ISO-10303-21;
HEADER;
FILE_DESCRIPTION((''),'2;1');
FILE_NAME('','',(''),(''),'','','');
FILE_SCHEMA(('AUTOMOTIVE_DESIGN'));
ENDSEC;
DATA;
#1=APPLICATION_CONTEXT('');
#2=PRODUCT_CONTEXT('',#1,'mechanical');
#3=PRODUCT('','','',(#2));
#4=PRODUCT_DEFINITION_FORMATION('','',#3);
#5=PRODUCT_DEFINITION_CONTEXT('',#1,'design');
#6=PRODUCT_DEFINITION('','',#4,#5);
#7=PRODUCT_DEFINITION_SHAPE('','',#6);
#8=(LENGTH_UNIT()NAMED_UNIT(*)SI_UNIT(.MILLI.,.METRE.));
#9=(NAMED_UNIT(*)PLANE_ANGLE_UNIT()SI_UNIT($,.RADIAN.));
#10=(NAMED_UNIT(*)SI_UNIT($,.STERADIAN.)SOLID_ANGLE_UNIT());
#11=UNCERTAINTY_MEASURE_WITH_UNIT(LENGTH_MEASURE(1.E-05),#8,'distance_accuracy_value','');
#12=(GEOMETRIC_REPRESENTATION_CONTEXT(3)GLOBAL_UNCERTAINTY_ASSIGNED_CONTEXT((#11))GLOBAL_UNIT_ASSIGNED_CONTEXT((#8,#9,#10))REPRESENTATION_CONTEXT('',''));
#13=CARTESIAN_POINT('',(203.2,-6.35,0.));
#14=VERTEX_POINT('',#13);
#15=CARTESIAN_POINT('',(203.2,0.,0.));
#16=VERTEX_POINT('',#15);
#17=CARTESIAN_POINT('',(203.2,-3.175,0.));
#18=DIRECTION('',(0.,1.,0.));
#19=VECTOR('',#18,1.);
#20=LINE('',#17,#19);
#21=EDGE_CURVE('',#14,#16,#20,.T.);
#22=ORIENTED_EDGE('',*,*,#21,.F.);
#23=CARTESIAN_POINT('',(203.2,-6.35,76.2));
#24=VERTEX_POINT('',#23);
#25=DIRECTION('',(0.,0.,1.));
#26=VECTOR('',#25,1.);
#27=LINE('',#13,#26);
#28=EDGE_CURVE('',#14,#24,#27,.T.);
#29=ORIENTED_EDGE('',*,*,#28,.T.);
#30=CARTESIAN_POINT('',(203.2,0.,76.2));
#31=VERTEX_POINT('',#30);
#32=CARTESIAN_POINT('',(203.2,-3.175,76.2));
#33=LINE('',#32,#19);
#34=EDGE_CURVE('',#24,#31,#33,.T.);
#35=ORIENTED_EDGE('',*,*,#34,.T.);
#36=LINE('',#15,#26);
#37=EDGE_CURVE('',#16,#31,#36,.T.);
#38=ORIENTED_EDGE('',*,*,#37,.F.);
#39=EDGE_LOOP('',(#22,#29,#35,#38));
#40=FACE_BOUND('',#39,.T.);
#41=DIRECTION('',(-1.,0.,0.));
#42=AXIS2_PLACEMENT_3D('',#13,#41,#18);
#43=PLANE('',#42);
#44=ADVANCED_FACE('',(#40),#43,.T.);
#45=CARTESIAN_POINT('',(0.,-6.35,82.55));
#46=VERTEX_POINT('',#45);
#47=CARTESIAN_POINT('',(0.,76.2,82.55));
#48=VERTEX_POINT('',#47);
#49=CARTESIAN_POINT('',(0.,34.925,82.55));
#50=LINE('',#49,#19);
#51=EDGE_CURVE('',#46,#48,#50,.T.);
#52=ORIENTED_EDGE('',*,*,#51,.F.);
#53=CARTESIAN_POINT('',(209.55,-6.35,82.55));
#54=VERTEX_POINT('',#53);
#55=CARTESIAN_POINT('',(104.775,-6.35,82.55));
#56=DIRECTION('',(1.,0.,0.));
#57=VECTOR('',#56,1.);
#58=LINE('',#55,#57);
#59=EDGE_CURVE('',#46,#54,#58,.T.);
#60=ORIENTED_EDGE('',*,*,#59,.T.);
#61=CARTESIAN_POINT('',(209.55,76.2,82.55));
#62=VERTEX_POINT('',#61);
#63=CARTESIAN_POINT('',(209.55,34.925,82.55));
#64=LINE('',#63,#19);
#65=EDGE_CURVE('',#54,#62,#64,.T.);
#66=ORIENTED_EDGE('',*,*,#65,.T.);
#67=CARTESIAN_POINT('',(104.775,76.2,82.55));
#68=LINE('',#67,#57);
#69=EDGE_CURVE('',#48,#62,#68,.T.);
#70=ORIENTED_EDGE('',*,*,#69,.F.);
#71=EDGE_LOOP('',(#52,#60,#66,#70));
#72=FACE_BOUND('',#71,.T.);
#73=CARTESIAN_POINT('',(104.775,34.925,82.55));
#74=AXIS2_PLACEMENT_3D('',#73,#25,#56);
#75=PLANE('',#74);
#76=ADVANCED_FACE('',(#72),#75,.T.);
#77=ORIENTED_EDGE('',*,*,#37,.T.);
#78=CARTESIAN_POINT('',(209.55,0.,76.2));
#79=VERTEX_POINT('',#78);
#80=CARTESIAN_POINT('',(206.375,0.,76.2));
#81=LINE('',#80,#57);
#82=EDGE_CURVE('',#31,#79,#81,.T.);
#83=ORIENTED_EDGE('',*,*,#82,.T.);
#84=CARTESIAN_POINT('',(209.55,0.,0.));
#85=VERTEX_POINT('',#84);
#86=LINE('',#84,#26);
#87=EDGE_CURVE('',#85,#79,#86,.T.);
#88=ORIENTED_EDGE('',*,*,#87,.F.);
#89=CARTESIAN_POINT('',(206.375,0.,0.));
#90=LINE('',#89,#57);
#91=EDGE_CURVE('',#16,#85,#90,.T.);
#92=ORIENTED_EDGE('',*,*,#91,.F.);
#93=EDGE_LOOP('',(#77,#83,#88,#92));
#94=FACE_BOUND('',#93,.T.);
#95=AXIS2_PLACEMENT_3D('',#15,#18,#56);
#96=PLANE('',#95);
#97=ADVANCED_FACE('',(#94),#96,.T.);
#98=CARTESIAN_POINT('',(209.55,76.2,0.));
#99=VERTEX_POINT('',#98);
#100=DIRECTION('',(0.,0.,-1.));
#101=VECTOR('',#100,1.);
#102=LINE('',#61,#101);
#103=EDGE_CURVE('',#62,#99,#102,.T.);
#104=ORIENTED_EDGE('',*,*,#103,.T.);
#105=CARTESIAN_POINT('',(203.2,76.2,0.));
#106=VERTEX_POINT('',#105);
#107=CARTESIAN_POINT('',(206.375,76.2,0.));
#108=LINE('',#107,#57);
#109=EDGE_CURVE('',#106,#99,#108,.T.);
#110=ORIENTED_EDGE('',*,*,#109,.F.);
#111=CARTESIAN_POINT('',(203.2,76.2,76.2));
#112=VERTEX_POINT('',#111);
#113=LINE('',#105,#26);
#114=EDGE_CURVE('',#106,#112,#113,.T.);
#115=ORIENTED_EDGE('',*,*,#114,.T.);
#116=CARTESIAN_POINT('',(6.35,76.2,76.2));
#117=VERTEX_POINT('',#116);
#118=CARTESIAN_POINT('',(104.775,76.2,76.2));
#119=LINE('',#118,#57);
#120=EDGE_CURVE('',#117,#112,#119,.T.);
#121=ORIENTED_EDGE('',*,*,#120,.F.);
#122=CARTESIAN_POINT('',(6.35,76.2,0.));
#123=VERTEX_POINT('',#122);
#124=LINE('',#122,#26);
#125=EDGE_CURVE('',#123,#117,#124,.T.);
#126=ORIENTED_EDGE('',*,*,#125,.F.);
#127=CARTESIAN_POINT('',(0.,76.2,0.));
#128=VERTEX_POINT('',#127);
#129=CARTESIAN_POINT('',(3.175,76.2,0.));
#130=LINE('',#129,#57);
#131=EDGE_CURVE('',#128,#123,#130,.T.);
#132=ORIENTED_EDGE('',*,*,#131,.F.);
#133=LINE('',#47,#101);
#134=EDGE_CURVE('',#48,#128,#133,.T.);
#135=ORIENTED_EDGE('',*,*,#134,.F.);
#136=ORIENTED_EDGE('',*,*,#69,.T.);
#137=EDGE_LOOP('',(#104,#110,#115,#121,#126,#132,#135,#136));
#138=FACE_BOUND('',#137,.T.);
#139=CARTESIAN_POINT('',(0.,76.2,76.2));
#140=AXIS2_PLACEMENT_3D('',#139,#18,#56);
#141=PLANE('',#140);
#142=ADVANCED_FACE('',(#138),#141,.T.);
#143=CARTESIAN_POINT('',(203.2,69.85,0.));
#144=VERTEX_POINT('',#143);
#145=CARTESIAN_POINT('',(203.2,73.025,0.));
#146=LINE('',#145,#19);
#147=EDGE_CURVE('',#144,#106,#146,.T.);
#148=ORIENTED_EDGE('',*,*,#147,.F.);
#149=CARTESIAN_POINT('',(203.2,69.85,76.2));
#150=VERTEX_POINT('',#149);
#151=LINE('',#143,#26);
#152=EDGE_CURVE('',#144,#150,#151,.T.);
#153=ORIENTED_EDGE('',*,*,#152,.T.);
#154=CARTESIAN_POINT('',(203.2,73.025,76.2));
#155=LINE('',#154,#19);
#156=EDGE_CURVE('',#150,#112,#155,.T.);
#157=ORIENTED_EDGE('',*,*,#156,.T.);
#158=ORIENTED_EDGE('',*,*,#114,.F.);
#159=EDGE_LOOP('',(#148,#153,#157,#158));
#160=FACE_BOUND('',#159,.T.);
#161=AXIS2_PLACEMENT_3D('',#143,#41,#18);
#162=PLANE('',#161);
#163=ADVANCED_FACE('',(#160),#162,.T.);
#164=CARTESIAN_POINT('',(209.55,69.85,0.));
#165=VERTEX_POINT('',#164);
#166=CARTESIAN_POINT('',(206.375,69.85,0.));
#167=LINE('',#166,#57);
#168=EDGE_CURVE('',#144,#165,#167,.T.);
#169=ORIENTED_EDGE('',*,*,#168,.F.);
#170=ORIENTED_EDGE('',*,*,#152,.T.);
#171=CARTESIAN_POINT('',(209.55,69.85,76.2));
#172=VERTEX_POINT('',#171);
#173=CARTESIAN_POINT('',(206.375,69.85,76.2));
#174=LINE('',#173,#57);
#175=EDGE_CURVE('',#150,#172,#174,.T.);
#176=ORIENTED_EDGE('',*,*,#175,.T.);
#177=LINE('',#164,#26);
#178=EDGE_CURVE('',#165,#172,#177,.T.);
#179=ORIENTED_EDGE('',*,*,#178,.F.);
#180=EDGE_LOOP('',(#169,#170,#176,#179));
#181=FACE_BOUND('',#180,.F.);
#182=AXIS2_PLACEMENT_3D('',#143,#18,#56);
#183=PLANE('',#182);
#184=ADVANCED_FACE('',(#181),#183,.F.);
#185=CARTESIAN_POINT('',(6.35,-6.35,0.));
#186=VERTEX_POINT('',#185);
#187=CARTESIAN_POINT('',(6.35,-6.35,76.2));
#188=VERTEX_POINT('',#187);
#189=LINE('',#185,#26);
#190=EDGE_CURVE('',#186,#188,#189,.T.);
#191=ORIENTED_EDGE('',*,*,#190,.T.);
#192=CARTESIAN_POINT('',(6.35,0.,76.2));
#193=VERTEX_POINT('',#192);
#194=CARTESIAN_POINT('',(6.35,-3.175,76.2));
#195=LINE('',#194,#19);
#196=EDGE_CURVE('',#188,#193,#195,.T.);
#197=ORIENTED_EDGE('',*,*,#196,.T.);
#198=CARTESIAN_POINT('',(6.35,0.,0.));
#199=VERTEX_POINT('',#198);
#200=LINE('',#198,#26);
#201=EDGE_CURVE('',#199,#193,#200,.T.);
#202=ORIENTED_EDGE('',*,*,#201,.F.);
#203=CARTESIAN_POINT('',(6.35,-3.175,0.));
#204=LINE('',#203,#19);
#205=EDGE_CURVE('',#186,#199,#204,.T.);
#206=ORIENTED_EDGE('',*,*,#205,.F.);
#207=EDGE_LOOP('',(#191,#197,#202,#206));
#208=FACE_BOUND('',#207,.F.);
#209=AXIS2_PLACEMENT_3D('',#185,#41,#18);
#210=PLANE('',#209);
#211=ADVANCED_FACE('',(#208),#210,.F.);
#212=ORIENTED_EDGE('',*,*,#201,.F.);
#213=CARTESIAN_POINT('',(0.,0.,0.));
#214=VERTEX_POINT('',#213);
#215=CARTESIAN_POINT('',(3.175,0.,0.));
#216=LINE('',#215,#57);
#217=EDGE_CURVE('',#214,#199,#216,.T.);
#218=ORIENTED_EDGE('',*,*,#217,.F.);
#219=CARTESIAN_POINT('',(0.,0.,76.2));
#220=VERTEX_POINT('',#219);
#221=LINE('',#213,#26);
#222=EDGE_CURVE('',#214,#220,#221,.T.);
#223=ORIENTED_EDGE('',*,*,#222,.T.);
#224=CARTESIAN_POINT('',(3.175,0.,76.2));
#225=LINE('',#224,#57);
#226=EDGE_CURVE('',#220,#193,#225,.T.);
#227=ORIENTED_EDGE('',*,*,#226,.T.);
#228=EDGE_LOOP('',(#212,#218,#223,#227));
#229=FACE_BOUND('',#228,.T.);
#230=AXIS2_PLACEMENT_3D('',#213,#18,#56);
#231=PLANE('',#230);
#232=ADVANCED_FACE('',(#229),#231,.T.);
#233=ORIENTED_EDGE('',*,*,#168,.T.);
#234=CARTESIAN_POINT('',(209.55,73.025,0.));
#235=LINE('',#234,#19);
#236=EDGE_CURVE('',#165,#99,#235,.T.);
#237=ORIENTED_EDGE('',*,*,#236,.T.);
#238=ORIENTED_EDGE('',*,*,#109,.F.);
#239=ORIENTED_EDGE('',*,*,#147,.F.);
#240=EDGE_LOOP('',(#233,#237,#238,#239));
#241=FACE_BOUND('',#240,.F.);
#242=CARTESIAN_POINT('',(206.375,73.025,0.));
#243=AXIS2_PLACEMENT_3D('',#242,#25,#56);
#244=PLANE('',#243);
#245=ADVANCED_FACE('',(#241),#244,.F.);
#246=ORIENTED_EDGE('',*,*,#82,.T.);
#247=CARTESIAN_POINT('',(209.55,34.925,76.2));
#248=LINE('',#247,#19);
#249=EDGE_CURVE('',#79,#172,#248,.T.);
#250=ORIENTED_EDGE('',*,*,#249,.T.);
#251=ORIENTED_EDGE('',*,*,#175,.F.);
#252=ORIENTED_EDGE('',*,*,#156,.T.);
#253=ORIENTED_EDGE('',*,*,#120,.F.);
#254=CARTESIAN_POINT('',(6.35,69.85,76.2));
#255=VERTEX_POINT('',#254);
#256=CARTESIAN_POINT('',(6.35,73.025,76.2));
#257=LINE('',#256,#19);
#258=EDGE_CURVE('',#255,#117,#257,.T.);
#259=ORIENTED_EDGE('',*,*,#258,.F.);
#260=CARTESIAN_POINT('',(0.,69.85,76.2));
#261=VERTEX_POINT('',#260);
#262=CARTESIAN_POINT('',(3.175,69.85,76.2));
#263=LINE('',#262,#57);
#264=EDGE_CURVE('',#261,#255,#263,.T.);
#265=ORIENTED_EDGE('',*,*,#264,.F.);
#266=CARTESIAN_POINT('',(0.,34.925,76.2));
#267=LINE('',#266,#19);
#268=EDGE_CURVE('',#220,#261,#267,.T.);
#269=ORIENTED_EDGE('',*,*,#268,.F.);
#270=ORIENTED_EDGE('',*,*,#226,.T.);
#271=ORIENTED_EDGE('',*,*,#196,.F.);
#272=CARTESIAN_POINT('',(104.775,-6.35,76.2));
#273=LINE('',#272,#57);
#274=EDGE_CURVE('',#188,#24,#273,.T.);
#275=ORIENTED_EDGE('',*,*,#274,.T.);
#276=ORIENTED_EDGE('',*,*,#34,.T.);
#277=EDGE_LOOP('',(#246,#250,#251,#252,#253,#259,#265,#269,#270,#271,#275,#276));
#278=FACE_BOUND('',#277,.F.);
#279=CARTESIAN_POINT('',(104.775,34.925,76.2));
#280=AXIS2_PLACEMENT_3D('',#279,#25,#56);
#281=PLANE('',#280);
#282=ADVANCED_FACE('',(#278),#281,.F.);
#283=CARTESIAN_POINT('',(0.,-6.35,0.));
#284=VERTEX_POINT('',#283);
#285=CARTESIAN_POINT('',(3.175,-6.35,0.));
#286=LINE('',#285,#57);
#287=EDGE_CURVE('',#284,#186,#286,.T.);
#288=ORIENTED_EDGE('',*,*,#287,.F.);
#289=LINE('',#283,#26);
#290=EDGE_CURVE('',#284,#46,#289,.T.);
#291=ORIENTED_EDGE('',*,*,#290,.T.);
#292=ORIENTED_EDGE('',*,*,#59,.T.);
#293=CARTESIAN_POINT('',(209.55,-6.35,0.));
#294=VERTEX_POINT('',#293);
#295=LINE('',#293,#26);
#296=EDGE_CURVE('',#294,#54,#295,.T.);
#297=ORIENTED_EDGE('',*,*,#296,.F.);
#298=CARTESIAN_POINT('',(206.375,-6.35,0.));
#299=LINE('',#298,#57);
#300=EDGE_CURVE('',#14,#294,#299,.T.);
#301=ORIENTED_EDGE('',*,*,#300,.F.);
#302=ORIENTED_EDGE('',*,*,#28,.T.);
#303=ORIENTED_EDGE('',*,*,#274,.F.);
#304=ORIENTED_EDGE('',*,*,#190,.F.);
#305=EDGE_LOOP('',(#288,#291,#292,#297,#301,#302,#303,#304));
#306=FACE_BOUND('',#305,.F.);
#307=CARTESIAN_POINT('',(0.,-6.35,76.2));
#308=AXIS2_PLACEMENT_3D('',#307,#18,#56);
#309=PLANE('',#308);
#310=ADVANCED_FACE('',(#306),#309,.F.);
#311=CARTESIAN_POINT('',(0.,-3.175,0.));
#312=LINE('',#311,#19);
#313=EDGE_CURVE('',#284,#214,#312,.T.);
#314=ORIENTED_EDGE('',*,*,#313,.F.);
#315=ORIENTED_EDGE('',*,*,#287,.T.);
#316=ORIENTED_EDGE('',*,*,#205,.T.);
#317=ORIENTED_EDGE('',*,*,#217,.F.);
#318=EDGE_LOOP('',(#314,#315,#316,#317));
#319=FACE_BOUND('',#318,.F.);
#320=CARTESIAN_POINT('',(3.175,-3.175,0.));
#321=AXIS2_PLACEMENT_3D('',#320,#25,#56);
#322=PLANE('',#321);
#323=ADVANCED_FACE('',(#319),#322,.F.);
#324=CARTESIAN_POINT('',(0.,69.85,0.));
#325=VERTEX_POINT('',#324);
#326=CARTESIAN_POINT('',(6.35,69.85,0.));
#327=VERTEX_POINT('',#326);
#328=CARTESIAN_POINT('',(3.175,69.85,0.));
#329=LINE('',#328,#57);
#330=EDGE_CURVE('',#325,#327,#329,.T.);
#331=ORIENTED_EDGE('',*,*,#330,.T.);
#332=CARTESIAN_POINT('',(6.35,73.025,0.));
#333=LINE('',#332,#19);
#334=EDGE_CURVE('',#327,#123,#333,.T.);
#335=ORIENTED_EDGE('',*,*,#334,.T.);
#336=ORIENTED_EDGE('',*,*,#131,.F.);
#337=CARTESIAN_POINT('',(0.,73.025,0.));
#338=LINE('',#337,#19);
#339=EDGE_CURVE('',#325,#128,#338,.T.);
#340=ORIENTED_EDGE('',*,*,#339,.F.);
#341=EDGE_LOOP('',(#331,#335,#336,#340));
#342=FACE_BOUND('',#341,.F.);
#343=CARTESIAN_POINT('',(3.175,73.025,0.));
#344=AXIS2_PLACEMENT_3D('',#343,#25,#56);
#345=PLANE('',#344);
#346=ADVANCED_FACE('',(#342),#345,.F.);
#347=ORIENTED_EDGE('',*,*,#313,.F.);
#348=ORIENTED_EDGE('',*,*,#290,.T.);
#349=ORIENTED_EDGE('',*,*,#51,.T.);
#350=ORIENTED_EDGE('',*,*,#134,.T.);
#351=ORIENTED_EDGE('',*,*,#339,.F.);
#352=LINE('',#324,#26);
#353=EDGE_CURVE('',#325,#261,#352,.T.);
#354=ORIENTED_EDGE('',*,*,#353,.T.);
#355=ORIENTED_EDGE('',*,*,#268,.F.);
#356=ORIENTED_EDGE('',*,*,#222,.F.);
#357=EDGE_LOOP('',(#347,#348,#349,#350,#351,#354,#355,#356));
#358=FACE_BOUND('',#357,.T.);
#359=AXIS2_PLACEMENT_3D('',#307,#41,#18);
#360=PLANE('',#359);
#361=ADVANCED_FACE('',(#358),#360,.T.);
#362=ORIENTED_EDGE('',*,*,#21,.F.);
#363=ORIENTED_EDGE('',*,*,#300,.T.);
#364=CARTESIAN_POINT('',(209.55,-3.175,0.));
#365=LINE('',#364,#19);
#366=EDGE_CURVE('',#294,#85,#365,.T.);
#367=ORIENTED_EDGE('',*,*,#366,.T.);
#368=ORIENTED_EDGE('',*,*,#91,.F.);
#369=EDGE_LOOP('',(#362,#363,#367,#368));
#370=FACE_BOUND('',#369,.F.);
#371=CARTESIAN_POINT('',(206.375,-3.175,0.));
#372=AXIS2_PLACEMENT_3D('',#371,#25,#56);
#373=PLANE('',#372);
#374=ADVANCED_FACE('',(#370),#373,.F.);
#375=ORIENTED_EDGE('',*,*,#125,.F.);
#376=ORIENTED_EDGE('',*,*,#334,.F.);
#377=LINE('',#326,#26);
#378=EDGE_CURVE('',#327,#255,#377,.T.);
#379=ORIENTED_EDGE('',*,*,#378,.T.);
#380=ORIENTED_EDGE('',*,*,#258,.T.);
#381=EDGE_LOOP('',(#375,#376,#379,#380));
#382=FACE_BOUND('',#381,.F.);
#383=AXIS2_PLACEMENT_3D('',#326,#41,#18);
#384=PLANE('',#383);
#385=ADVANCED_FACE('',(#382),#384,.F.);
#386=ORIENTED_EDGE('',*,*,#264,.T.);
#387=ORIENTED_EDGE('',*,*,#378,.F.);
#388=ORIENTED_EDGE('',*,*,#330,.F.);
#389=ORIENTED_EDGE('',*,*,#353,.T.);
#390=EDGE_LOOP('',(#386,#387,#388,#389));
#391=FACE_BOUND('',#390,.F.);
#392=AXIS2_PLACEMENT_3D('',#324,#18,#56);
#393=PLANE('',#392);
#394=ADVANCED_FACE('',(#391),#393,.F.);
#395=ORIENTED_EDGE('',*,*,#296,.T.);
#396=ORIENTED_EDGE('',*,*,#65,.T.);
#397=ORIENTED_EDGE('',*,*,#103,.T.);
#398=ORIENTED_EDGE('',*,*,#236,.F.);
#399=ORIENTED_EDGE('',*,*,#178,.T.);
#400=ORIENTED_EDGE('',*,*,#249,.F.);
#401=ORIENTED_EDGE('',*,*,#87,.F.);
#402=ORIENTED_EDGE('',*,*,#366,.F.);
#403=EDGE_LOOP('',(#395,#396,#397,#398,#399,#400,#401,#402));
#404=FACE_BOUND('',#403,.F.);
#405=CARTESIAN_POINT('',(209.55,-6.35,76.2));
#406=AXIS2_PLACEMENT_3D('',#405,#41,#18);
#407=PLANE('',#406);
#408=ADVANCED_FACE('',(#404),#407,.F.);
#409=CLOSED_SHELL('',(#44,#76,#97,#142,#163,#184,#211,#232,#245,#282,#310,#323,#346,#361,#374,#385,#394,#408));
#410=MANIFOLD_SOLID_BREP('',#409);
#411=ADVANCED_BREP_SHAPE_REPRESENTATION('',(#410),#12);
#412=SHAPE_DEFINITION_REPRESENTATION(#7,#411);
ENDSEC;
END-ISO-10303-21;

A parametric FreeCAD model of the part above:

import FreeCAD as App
import Part
import Sketcher
Q = App.Units.Quantity


def add_polygon(sketch, points):
    """Adds a closed chain of lines whose ends are joined by coincident constraints."""
    first, n = sketch.GeometryCount, len(points)
    for a, b in zip(points, points[1:] + points[:1]):
        sketch.addGeometry(Part.LineSegment(App.Vector(*a, 0), App.Vector(*b, 0)), False)
    for i in range(n):
        sketch.addConstraint(Sketcher.Constraint("Coincident", first + i, 2, first + (i + 1) % n, 1))

doc = App.newDocument("Part")
body = doc.addObject("PartDesign::Body", "Body")
body.AllowCompound = True

# Sketch on XY plane
sketch1 = body.newObject("Sketcher::SketchObject", "Sketch")
sketch1.AttachmentSupport = (doc.getObject("XY_Plane"), [""])
sketch1.MapMode = "FlatFace"
add_polygon(sketch1, [(0, 0), (0, -6.35), (6.35, -6.35), (6.35, 0)])  # lines 0-3
add_polygon(sketch1, [(0, 76.2), (0, 69.85), (6.35, 69.85), (6.35, 76.2)])  # lines 4-7
add_polygon(sketch1, [(203.2, 0), (203.2, -6.35), (209.55, -6.35), (209.55, 0)])  # lines 8-11
add_polygon(sketch1, [(203.2, 76.2), (203.2, 69.85), (209.55, 69.85), (209.55, 76.2)])  # lines 12-15
sketch1.addConstraint([
    Sketcher.Constraint("Vertical", 0),
    Sketcher.Constraint("Horizontal", 1),
    Sketcher.Constraint("Vertical", 2),
    Sketcher.Constraint("Horizontal", 3),
    Sketcher.Constraint("Vertical", 4),
    Sketcher.Constraint("Horizontal", 5),
    Sketcher.Constraint("Vertical", 6),
    Sketcher.Constraint("Horizontal", 7),
    Sketcher.Constraint("Vertical", 8),
    Sketcher.Constraint("Horizontal", 9),
    Sketcher.Constraint("Vertical", 10),
    Sketcher.Constraint("Horizontal", 11),
    Sketcher.Constraint("Vertical", 12),
    Sketcher.Constraint("Horizontal", 13),
    Sketcher.Constraint("Vertical", 14),
    Sketcher.Constraint("Horizontal", 15),
    Sketcher.Constraint("Coincident", 3, 2, -1, 1),
    Sketcher.Constraint("PointOnObject", 4, 2, -2),
    Sketcher.Constraint("PointOnObject", 10, 2, -1),
    Sketcher.Constraint("Horizontal", 1, 2, 8, 2),
    Sketcher.Constraint("Horizontal", 5, 2, 12, 2),
    Sketcher.Constraint("Horizontal", 7, 2, 14, 2),
    Sketcher.Constraint("Vertical", 2, 2, 5, 2),
    Sketcher.Constraint("Vertical", 11, 2, 12, 2),
    Sketcher.Constraint("Vertical", 10, 2, 13, 2),
    Sketcher.Constraint("Equal", 7, 9),
    Sketcher.Constraint("Equal", 15, 0),
    Sketcher.Constraint("Equal", 2, 4),
    Sketcher.Constraint("DistanceY", -1, 1, 6, 2, Q("3 in")),
    Sketcher.Constraint("DistanceX", -1, 1, 8, 2, Q("8 in")),
    Sketcher.Constraint("DistanceX", 1, 1, 1, 2, Q("0.25 in")),
])
pad1 = body.newObject("PartDesign::Pad", "Pad")
pad1.Profile = sketch1
pad1.Length = Q("3 in")

# Sketch on XY plane
sketch2 = body.newObject("Sketcher::SketchObject", "Sketch001")
sketch2.AttachmentSupport = (doc.getObject("XY_Plane"), [""])
sketch2.MapMode = "FlatFace"
sketch2.AttachmentOffset = App.Placement(App.Vector(0, 0, 3 * 25.4), App.Rotation())
add_polygon(sketch2, [(0, 76.2), (0, -6.35), (209.55, -6.35), (209.55, 76.2)])  # lines 0-3
sketch2.addConstraint([
    Sketcher.Constraint("Vertical", 0),
    Sketcher.Constraint("Horizontal", 1),
    Sketcher.Constraint("Vertical", 2),
    Sketcher.Constraint("Horizontal", 3),
    Sketcher.Constraint("PointOnObject", 0, 2, -2),
    Sketcher.Constraint("DistanceY", -1, 1, 2, 2, Q("3 in")),
    Sketcher.Constraint("DistanceX", 1, 1, 1, 2, Q("8.25 in")),
    Sketcher.Constraint("DistanceY", 0, 2, 0, 1, Q("3.25 in")),
])
pad2 = body.newObject("PartDesign::Pad", "Pad001")
pad2.Profile = sketch2
pad2.Length = Q("0.25 in")

doc.recompute()
